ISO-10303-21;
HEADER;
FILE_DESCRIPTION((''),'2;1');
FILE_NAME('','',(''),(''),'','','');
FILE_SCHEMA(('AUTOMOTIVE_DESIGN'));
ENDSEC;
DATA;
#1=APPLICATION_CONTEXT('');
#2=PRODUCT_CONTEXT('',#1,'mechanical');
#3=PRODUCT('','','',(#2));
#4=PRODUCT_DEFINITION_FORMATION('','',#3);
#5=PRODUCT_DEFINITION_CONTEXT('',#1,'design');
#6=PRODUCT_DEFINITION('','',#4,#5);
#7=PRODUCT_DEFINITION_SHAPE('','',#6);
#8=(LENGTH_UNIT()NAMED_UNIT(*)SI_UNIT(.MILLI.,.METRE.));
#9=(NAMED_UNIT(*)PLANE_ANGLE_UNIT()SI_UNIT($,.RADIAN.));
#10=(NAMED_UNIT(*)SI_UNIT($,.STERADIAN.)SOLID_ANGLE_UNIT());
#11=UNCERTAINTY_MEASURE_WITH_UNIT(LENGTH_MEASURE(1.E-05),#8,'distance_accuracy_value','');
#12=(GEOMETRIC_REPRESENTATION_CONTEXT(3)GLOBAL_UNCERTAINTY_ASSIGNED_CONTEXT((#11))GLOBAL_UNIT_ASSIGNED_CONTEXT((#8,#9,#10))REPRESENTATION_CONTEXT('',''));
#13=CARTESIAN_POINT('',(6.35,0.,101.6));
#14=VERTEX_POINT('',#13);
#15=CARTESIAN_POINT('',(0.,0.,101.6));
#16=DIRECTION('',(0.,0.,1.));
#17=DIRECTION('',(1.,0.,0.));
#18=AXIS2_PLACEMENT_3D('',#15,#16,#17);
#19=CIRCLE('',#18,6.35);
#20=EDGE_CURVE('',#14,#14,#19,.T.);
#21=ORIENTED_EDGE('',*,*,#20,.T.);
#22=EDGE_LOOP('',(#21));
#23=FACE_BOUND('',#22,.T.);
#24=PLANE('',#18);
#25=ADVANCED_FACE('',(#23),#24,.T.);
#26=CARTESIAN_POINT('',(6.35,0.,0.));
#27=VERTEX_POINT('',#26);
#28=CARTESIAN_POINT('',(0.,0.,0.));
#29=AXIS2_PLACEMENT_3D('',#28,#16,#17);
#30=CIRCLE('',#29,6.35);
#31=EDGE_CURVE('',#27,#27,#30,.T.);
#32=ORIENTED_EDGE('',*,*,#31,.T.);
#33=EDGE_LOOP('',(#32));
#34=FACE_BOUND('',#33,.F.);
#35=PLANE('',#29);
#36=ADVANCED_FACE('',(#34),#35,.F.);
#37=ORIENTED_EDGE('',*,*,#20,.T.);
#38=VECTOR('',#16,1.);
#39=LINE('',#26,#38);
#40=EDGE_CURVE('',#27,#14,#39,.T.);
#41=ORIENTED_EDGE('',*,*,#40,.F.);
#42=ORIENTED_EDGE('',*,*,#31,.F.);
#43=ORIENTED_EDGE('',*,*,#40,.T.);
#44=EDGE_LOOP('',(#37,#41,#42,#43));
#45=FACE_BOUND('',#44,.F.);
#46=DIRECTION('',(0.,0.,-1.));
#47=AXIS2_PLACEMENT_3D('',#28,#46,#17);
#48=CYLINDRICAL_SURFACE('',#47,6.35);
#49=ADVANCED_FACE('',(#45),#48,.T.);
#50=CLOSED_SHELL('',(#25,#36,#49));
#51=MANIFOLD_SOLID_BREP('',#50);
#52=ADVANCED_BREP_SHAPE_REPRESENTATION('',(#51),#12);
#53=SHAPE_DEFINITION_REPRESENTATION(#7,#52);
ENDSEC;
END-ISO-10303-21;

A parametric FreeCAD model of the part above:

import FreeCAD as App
import Part
import Sketcher
from FreeCAD import Vector
Q = App.Units.Quantity

doc = App.newDocument("Part")
body = doc.addObject("PartDesign::Body", "Body")

# Sketch on XY plane
sketch1 = doc.addObject("Sketcher::SketchObject", "Sketch")
body.addObject(sketch1)
sketch1.AttachmentSupport = (doc.XY_Plane, [""])
sketch1.MapMode = "FlatFace"
sketch1.addGeometry(Part.Circle(Vector(0, 0, 0), Vector(0, 0, 1), 6), False)
sketch1.addConstraint([
    Sketcher.Constraint("Coincident", 0, 3, -1, 1),
    Sketcher.Constraint("Diameter", 0, Q("0.5 in")),
])
pad1 = doc.addObject("PartDesign::Pad", "Pad")
body.addObject(pad1)
pad1.Profile = sketch1
pad1.Length = Q("4 in")

doc.recompute()
